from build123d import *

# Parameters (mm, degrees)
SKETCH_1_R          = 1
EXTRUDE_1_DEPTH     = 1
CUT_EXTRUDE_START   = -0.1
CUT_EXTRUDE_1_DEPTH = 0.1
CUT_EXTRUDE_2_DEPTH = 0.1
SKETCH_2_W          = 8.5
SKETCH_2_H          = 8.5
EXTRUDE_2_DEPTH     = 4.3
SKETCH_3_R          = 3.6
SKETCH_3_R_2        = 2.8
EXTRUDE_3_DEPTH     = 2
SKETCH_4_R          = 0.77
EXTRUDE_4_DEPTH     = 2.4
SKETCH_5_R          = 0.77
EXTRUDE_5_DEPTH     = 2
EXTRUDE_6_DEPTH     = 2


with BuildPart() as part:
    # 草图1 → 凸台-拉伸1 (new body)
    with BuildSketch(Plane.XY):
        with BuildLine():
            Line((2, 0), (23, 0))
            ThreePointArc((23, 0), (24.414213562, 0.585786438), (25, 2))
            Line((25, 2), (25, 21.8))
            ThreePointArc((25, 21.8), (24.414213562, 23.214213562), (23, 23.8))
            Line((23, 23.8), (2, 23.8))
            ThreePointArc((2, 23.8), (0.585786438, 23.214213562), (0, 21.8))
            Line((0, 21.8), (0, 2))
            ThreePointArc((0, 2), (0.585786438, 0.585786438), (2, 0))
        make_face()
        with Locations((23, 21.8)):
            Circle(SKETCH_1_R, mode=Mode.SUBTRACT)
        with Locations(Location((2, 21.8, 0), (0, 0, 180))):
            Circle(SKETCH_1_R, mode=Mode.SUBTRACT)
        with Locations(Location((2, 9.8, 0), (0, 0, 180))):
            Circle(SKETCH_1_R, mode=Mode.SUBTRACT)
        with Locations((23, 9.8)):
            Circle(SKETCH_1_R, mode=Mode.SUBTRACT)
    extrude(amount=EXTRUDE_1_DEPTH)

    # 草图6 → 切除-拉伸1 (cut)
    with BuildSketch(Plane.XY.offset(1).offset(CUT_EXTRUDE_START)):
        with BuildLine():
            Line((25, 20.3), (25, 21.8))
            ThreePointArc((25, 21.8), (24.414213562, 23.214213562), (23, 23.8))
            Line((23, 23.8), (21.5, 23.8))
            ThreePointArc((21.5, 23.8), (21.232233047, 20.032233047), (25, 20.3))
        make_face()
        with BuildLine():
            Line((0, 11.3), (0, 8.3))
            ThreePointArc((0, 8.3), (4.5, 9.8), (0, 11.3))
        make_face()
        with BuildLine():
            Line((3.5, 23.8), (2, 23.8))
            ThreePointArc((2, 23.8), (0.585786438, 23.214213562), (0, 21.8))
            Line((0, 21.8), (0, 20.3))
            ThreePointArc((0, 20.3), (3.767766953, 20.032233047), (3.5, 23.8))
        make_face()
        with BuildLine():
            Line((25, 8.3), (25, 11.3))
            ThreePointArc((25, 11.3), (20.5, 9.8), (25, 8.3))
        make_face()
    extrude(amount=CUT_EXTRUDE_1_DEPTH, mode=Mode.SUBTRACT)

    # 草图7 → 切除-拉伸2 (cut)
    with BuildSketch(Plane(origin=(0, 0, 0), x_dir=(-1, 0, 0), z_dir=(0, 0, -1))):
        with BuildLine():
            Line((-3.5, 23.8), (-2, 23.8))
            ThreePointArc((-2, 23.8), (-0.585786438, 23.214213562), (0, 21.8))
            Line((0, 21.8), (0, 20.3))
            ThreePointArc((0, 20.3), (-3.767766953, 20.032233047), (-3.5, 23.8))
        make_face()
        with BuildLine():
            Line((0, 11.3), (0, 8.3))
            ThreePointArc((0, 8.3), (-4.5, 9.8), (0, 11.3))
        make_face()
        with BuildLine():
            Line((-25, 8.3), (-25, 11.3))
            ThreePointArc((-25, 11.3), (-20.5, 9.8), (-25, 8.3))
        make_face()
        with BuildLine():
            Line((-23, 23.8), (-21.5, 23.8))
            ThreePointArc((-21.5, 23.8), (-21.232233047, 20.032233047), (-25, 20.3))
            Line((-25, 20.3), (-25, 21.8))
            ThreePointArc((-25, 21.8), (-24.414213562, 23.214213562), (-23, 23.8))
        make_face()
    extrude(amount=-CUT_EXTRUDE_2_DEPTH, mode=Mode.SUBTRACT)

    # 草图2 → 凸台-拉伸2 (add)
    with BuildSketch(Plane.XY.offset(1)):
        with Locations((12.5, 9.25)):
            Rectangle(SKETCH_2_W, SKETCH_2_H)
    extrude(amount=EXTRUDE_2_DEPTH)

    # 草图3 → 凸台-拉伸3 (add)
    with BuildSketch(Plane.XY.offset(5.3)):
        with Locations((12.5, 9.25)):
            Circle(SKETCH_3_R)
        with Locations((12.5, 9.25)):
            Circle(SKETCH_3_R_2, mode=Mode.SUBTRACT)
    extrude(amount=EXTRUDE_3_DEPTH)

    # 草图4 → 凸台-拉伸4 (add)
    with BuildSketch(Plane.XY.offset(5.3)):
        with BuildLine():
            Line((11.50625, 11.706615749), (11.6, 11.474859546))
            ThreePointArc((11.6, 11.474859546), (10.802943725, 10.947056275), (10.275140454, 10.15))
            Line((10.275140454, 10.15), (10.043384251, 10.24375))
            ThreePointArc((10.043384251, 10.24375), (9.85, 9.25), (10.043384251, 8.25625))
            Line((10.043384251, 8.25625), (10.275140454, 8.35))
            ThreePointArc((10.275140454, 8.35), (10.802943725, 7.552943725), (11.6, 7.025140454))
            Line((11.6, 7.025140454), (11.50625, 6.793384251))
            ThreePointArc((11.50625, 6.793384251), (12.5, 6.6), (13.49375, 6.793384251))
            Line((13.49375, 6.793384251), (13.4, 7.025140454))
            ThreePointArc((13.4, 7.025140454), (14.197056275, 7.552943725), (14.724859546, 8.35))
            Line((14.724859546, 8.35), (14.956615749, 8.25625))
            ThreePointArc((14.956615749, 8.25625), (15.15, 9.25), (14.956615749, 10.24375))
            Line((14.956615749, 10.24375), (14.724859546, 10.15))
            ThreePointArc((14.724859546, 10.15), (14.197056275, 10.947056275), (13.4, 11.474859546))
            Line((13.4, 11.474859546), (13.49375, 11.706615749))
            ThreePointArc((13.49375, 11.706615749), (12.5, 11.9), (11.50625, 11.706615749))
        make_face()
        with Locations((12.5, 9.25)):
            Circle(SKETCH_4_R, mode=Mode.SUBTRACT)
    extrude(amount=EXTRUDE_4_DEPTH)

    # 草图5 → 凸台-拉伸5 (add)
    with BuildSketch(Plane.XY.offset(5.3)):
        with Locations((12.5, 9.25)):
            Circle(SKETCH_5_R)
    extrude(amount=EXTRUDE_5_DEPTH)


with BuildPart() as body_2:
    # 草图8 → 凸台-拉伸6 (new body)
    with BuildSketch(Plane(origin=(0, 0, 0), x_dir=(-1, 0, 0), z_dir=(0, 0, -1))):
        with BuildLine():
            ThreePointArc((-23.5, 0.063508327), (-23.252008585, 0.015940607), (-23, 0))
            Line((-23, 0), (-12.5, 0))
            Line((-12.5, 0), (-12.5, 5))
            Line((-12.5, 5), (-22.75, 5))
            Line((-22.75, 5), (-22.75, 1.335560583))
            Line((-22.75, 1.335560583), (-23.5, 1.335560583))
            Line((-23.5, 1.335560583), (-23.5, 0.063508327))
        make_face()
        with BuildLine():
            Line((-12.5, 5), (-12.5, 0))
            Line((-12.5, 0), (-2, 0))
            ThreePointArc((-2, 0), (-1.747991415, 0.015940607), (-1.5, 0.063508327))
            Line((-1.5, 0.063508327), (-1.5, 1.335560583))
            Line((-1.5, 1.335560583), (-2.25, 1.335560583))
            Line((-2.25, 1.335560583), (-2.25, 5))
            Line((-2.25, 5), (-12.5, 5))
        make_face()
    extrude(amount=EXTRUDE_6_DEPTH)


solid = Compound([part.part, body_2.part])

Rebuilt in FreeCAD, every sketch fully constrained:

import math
import FreeCAD as App
import Part
import Sketcher

V = App.Vector


def add_polygon(sketch, points):
    """Adds a closed chain of lines whose ends are joined by coincident constraints."""
    first, n = sketch.GeometryCount, len(points)
    for a, b in zip(points, points[1:] + points[:1]):
        sketch.addGeometry(Part.LineSegment(App.Vector(*a, 0), App.Vector(*b, 0)), False)
    for i in range(n):
        sketch.addConstraint(Sketcher.Constraint("Coincident", first + i, 2, first + (i + 1) % n, 1))

doc = App.newDocument("Part")
body = doc.addObject("PartDesign::Body", "Body")

# Sketch on XY plane
sketch1 = body.newObject("Sketcher::SketchObject", "Sketch")
sketch1.AttachmentSupport = (doc.getObject("XY_Plane"), [""])
sketch1.MapMode = "FlatFace"
sketch1.addGeometry([
    Part.LineSegment(V(2, 0, 0), V(23, 0, 0)),  # 0
    Part.ArcOfCircle(Part.Circle(V(23, 2, 0), V(0, 0, 1), 2), math.radians(-90), math.radians(0)),  # 1
    Part.LineSegment(V(25, 2, 0), V(25, 21.8, 0)),  # 2
    Part.ArcOfCircle(Part.Circle(V(23, 21.8, 0), V(0, 0, 1), 2), math.radians(0), math.radians(90)),  # 3
    Part.LineSegment(V(23, 23.8, 0), V(2, 23.8, 0)),  # 4
    Part.ArcOfCircle(Part.Circle(V(2, 21.8, 0), V(0, 0, 1), 2), math.radians(90), math.radians(180)),  # 5
    Part.LineSegment(V(0, 21.8, 0), V(0, 2, 0)),  # 6
    Part.ArcOfCircle(Part.Circle(V(2, 2, 0), V(0, 0, 1), 2), math.radians(-180), math.radians(-90)),  # 7
    Part.Circle(V(2, 9.8, 0), V(0, 0, 1), 1),  # 8
    Part.Circle(V(23, 9.8, 0), V(0, 0, 1), 1),  # 9
    Part.Circle(V(2, 21.8, 0), V(0, 0, 1), 1),  # 10
    Part.Circle(V(23, 21.8, 0), V(0, 0, 1), 1),  # 11
], False)
sketch1.addConstraint([
    Sketcher.Constraint("Tangent", 0, 2, 1, 1),
    Sketcher.Constraint("Tangent", 1, 2, 2, 1),
    Sketcher.Constraint("Tangent", 2, 2, 3, 1),
    Sketcher.Constraint("Tangent", 3, 2, 4, 1),
    Sketcher.Constraint("Tangent", 4, 2, 5, 1),
    Sketcher.Constraint("Tangent", 5, 2, 6, 1),
    Sketcher.Constraint("Tangent", 6, 2, 7, 1),
    Sketcher.Constraint("Tangent", 7, 2, 0, 1),
    Sketcher.Constraint("Horizontal", 0),
    Sketcher.Constraint("Vertical", 2),
    Sketcher.Constraint("Horizontal", 4),
    Sketcher.Constraint("Vertical", 6),
    Sketcher.Constraint("Coincident", 10, 3, 5, 3),
    Sketcher.Constraint("Coincident", 11, 3, 3, 3),
    Sketcher.Constraint("Equal", 1, 3),
    Sketcher.Constraint("Equal", 3, 5),
    Sketcher.Constraint("Equal", 5, 7),
    Sketcher.Constraint("Equal", 8, 9),
    Sketcher.Constraint("Equal", 9, 10),
    Sketcher.Constraint("Equal", 10, 11),
    Sketcher.Constraint("PointOnObject", 0, 2, -1),
    Sketcher.Constraint("PointOnObject", 5, 2, -2),
    Sketcher.Constraint("Horizontal", 8, 3, 9, 3),
    Sketcher.Constraint("Vertical", 7, 3, 8, 3),
    Sketcher.Constraint("Vertical", 3, 3, 9, 3),
    Sketcher.Constraint("Diameter", 8, 2.0),
    Sketcher.Constraint("Radius", 1, 2.0),
    Sketcher.Constraint("DistanceX", 0, 1, 0, 2, 21.0),
    Sketcher.Constraint("DistanceY", 2, 1, 2, 2, 19.8),
    Sketcher.Constraint("DistanceY", 8, 3, 5, 3, 12.0),
])
pad1 = body.newObject("PartDesign::Pad", "Pad")
pad1.Profile = sketch1
pad1.Length = 1

# Sketch on XY plane
sketch2 = body.newObject("Sketcher::SketchObject", "Sketch001")
sketch2.AttachmentSupport = (doc.getObject("XY_Plane"), [""])
sketch2.MapMode = "FlatFace"
sketch2.AttachmentOffset = App.Placement(V(0, 0, 0.9), App.Rotation())
sketch2.addGeometry([
    Part.LineSegment(V(25, 20.3, 0), V(25, 21.8, 0)),  # 0
    Part.ArcOfCircle(Part.Circle(V(23, 21.8, 0), V(0, 0, 1), 2), math.radians(0), math.radians(90)),  # 1
    Part.LineSegment(V(23, 23.8, 0), V(21.5, 23.8, 0)),  # 2
    Part.ArcOfCircle(Part.Circle(V(23, 21.8, 0), V(0, 0, 1), 2.5), math.radians(126.869898), math.radians(323.130102)),  # 3
    Part.LineSegment(V(0, 11.3, 0), V(0, 8.3, 0)),  # 4
    Part.ArcOfCircle(Part.Circle(V(2, 9.8, 0), V(0, 0, 1), 2.5), math.radians(-143.130102), math.radians(143.130102)),  # 5
    Part.LineSegment(V(3.5, 23.8, 0), V(2, 23.8, 0)),  # 6
    Part.ArcOfCircle(Part.Circle(V(2, 21.8, 0), V(0, 0, 1), 2), math.radians(90), math.radians(180)),  # 7
    Part.LineSegment(V(0, 21.8, 0), V(0, 20.3, 0)),  # 8
    Part.ArcOfCircle(Part.Circle(V(2, 21.8, 0), V(0, 0, 1), 2.5), math.radians(-143.130102), math.radians(53.130102)),  # 9
    Part.LineSegment(V(25, 8.3, 0), V(25, 11.3, 0)),  # 10
    Part.ArcOfCircle(Part.Circle(V(23, 9.8, 0), V(0, 0, 1), 2.5), math.radians(36.869898), math.radians(323.130102)),  # 11
], False)
sketch2.addConstraint([
    Sketcher.Constraint("Tangent", 0, 2, 1, 1),
    Sketcher.Constraint("Tangent", 1, 2, 2, 1),
    Sketcher.Constraint("Coincident", 2, 2, 3, 1),
    Sketcher.Constraint("Coincident", 3, 2, 0, 1),
    Sketcher.Constraint("Coincident", 4, 1, 5, 2),
    Sketcher.Constraint("Coincident", 5, 1, 4, 2),
    Sketcher.Constraint("Tangent", 6, 2, 7, 1),
    Sketcher.Constraint("Tangent", 7, 2, 8, 1),
    Sketcher.Constraint("Coincident", 8, 2, 9, 1),
    Sketcher.Constraint("Coincident", 9, 2, 6, 1),
    Sketcher.Constraint("Coincident", 10, 1, 11, 2),
    Sketcher.Constraint("Coincident", 11, 1, 10, 2),
    Sketcher.Constraint("Vertical", 0),
    Sketcher.Constraint("Horizontal", 2),
    Sketcher.Constraint("Vertical", 4),
    Sketcher.Constraint("Horizontal", 6),
    Sketcher.Constraint("Vertical", 8),
    Sketcher.Constraint("Vertical", 10),
    Sketcher.Constraint("Coincident", 3, 3, 1, 3),
    Sketcher.Constraint("Coincident", 9, 3, 7, 3),
    Sketcher.Constraint("Equal", 3, 5),
    Sketcher.Constraint("Equal", 1, 7),
    Sketcher.Constraint("Equal", 5, 9),
    Sketcher.Constraint("Equal", 9, 11),
    Sketcher.Constraint("PointOnObject", 4, 1, -2),
    Sketcher.Constraint("PointOnObject", 7, 2, -2),
    Sketcher.Constraint("Horizontal", 3, 3, 7, 3),
    Sketcher.Constraint("Horizontal", 5, 3, 11, 3),
    Sketcher.Constraint("Horizontal", 5, 1, 10, 1),
    Sketcher.Constraint("Vertical", 5, 3, 7, 3),
    Sketcher.Constraint("Vertical", 3, 3, 11, 3),
    Sketcher.Constraint("Radius", 1, 2.0),
    Sketcher.Constraint("Radius", 3, 2.5),
    Sketcher.Constraint("DistanceX", -1, 1, 1, 3, 23.0),
    Sketcher.Constraint("DistanceY", 5, 3, 1, 3, 12.0),
    Sketcher.Constraint("DistanceY", -1, 1, 1, 3, 21.8),
])
pocket1 = body.newObject("PartDesign::Pocket", "Pocket")
pocket1.Profile = sketch2
pocket1.Length = 0.1
pocket1.Reversed = True

# Sketch on XY plane
sketch3 = body.newObject("Sketcher::SketchObject", "Sketch002")
sketch3.AttachmentSupport = (doc.getObject("XY_Plane"), [""])
sketch3.MapMode = "FlatFace"
sketch3.addGeometry([
    Part.LineSegment(V(2, 23.8, 0), V(3.5, 23.8, 0)),  # 0
    Part.ArcOfCircle(Part.Circle(V(2, 21.8, 0), V(0, 0, 1), 2.5), math.radians(-143.130102), math.radians(53.130102)),  # 1
    Part.LineSegment(V(0, 20.3, 0), V(0, 21.8, 0)),  # 2
    Part.ArcOfCircle(Part.Circle(V(2, 21.8, 0), V(0, 0, 1), 2), math.radians(90), math.radians(180)),  # 3
    Part.LineSegment(V(0, 8.3, 0), V(0, 11.3, 0)),  # 4
    Part.ArcOfCircle(Part.Circle(V(2, 9.8, 0), V(0, 0, 1), 2.5), math.radians(-143.130102), math.radians(143.130102)),  # 5
    Part.LineSegment(V(25, 11.3, 0), V(25, 8.3, 0)),  # 6
    Part.ArcOfCircle(Part.Circle(V(23, 9.8, 0), V(0, 0, 1), 2.5), math.radians(36.869898), math.radians(323.130102)),  # 7
    Part.LineSegment(V(21.5, 23.8, 0), V(23, 23.8, 0)),  # 8
    Part.ArcOfCircle(Part.Circle(V(23, 21.8, 0), V(0, 0, 1), 2), math.radians(0), math.radians(90)),  # 9
    Part.LineSegment(V(25, 21.8, 0), V(25, 20.3, 0)),  # 10
    Part.ArcOfCircle(Part.Circle(V(23, 21.8, 0), V(0, 0, 1), 2.5), math.radians(126.869898), math.radians(323.130102)),  # 11
], False)
sketch3.addConstraint([
    Sketcher.Constraint("Coincident", 0, 2, 1, 2),
    Sketcher.Constraint("Coincident", 1, 1, 2, 1),
    Sketcher.Constraint("Tangent", 2, 2, 3, 2),
    Sketcher.Constraint("Tangent", 3, 1, 0, 1),
    Sketcher.Constraint("Coincident", 4, 1, 5, 1),
    Sketcher.Constraint("Coincident", 5, 2, 4, 2),
    Sketcher.Constraint("Coincident", 6, 1, 7, 1),
    Sketcher.Constraint("Coincident", 7, 2, 6, 2),
    Sketcher.Constraint("Tangent", 8, 2, 9, 2),
    Sketcher.Constraint("Tangent", 9, 1, 10, 1),
    Sketcher.Constraint("Coincident", 10, 2, 11, 2),
    Sketcher.Constraint("Coincident", 11, 1, 8, 1),
    Sketcher.Constraint("Horizontal", 0),
    Sketcher.Constraint("Vertical", 2),
    Sketcher.Constraint("Vertical", 4),
    Sketcher.Constraint("Vertical", 6),
    Sketcher.Constraint("Horizontal", 8),
    Sketcher.Constraint("Vertical", 10),
    Sketcher.Constraint("Coincident", 3, 3, 1, 3),
    Sketcher.Constraint("Coincident", 11, 3, 9, 3),
    Sketcher.Constraint("Equal", 1, 5),
    Sketcher.Constraint("Equal", 5, 7),
    Sketcher.Constraint("Equal", 3, 9),
    Sketcher.Constraint("Equal", 7, 11),
    Sketcher.Constraint("PointOnObject", 1, 1, -2),
    Sketcher.Constraint("PointOnObject", 4, 1, -2),
    Sketcher.Constraint("Horizontal", 5, 3, 7, 3),
    Sketcher.Constraint("Horizontal", 3, 3, 9, 3),
    Sketcher.Constraint("Horizontal", 5, 2, 6, 1),
    Sketcher.Constraint("Vertical", 3, 3, 5, 3),
    Sketcher.Constraint("Vertical", 7, 3, 9, 3),
    Sketcher.Constraint("Radius", 3, 2.0),
    Sketcher.Constraint("Radius", 1, 2.5),
    Sketcher.Constraint("DistanceX", -1, 1, 7, 3, 23.0),
    Sketcher.Constraint("DistanceY", 5, 3, 3, 3, 12.0),
    Sketcher.Constraint("DistanceY", -1, 1, 1, 3, 21.8),
])
pocket2 = body.newObject("PartDesign::Pocket", "Pocket001")
pocket2.Profile = sketch3
pocket2.Length = 0.1
pocket2.Reversed = True

# Sketch on XY plane
sketch4 = body.newObject("Sketcher::SketchObject", "Sketch003")
sketch4.AttachmentSupport = (doc.getObject("XY_Plane"), [""])
sketch4.MapMode = "FlatFace"
sketch4.AttachmentOffset = App.Placement(V(0, 0, 1), App.Rotation())
add_polygon(sketch4, [(8.25, 13.5), (8.25, 5), (16.75, 5), (16.75, 13.5)])  # lines 0-3
sketch4.addConstraint([
    Sketcher.Constraint("Vertical", 0),
    Sketcher.Constraint("Horizontal", 1),
    Sketcher.Constraint("Vertical", 2),
    Sketcher.Constraint("Horizontal", 3),
    Sketcher.Constraint("Equal", 3, 0),
    Sketcher.Constraint("DistanceX", 1, 1, 1, 2, 8.5),
    Sketcher.Constraint("DistanceY", -1, 1, 0, 2, 5.0),
    Sketcher.Constraint("DistanceX", -1, 1, 0, 2, 8.25),
])
pad2 = body.newObject("PartDesign::Pad", "Pad001")
pad2.Profile = sketch4
pad2.Length = 4.3

# Sketch on XY plane
sketch5 = body.newObject("Sketcher::SketchObject", "Sketch004")
sketch5.AttachmentSupport = (doc.getObject("XY_Plane"), [""])
sketch5.MapMode = "FlatFace"
sketch5.AttachmentOffset = App.Placement(V(0, 0, 5.3), App.Rotation())
sketch5.addGeometry([
    Part.Circle(V(12.5, 9.25, 0), V(0, 0, 1), 3.6),
    Part.Circle(V(12.5, 9.25, 0), V(0, 0, 1), 2.8),
], False)
sketch5.addConstraint([
    Sketcher.Constraint("Coincident", 1, 3, 0, 3),
    Sketcher.Constraint("Diameter", 0, 7.2),
    Sketcher.Constraint("Diameter", 1, 5.6),
    Sketcher.Constraint("DistanceX", -1, 1, 0, 3, 12.5),
    Sketcher.Constraint("DistanceY", -1, 1, 0, 3, 9.25),
])
pad3 = body.newObject("PartDesign::Pad", "Pad002")
pad3.Profile = sketch5
pad3.Length = 2

# Sketch on XY plane
sketch6 = body.newObject("Sketcher::SketchObject", "Sketch005")
sketch6.AttachmentSupport = (doc.getObject("XY_Plane"), [""])
sketch6.MapMode = "FlatFace"
sketch6.AttachmentOffset = App.Placement(V(0, 0, 5.3), App.Rotation())
sketch6.addGeometry([
    Part.LineSegment(V(11.50625, 11.706616, 0), V(11.6, 11.47486, 0)),  # 0
    Part.ArcOfCircle(Part.Circle(V(12.5, 9.25, 0), V(0, 0, 1), 2.4), math.radians(112.024313), math.radians(157.975687)),  # 1
    Part.LineSegment(V(10.27514, 10.15, 0), V(10.043384, 10.24375, 0)),  # 2
    Part.ArcOfCircle(Part.Circle(V(12.5, 9.25, 0), V(0, 0, 1), 2.65), math.radians(157.975687), math.radians(202.024313)),  # 3
    Part.LineSegment(V(10.043384, 8.25625, 0), V(10.27514, 8.35, 0)),  # 4
    Part.ArcOfCircle(Part.Circle(V(12.5, 9.25, 0), V(0, 0, 1), 2.4), math.radians(-157.975687), math.radians(-112.024313)),  # 5
    Part.LineSegment(V(11.6, 7.02514, 0), V(11.50625, 6.793384, 0)),  # 6
    Part.ArcOfCircle(Part.Circle(V(12.5, 9.25, 0), V(0, 0, 1), 2.65), math.radians(-112.024313), math.radians(-67.975687)),  # 7
    Part.LineSegment(V(13.49375, 6.793384, 0), V(13.4, 7.02514, 0)),  # 8
    Part.ArcOfCircle(Part.Circle(V(12.5, 9.25, 0), V(0, 0, 1), 2.4), math.radians(-67.975687), math.radians(-22.024313)),  # 9
    Part.LineSegment(V(14.72486, 8.35, 0), V(14.956616, 8.25625, 0)),  # 10
    Part.ArcOfCircle(Part.Circle(V(12.5, 9.25, 0), V(0, 0, 1), 2.65), math.radians(-22.024313), math.radians(22.024313)),  # 11
    Part.LineSegment(V(14.956616, 10.24375, 0), V(14.72486, 10.15, 0)),  # 12
    Part.ArcOfCircle(Part.Circle(V(12.5, 9.25, 0), V(0, 0, 1), 2.4), math.radians(22.024313), math.radians(67.975687)),  # 13
    Part.LineSegment(V(13.4, 11.47486, 0), V(13.49375, 11.706616, 0)),  # 14
    Part.ArcOfCircle(Part.Circle(V(12.5, 9.25, 0), V(0, 0, 1), 2.65), math.radians(67.975687), math.radians(112.024313)),  # 15
    Part.Circle(V(12.5, 9.25, 0), V(0, 0, 1), 0.77),  # 16
], False)
sketch6.addConstraint([
    Sketcher.Constraint("Coincident", 0, 2, 1, 1),
    Sketcher.Constraint("Coincident", 1, 2, 2, 1),
    Sketcher.Constraint("Coincident", 2, 2, 3, 1),
    Sketcher.Constraint("Coincident", 3, 2, 4, 1),
    Sketcher.Constraint("Coincident", 4, 2, 5, 1),
    Sketcher.Constraint("Coincident", 5, 2, 6, 1),
    Sketcher.Constraint("Coincident", 6, 2, 7, 1),
    Sketcher.Constraint("Coincident", 7, 2, 8, 1),
    Sketcher.Constraint("Coincident", 8, 2, 9, 1),
    Sketcher.Constraint("Coincident", 9, 2, 10, 1),
    Sketcher.Constraint("Coincident", 10, 2, 11, 1),
    Sketcher.Constraint("Coincident", 11, 2, 12, 1),
    Sketcher.Constraint("Coincident", 12, 2, 13, 1),
    Sketcher.Constraint("Coincident", 13, 2, 14, 1),
    Sketcher.Constraint("Coincident", 14, 2, 15, 1),
    Sketcher.Constraint("Coincident", 15, 2, 0, 1),
    Sketcher.Constraint("Coincident", 3, 3, 1, 3),
    Sketcher.Constraint("Coincident", 5, 3, 1, 3),
    Sketcher.Constraint("Coincident", 7, 3, 1, 3),
    Sketcher.Constraint("Coincident", 9, 3, 1, 3),
    Sketcher.Constraint("Coincident", 11, 3, 1, 3),
    Sketcher.Constraint("Coincident", 13, 3, 1, 3),
    Sketcher.Constraint("Coincident", 15, 3, 1, 3),
    Sketcher.Constraint("Coincident", 16, 3, 1, 3),
    Sketcher.Constraint("Equal", 1, 5),
    Sketcher.Constraint("Equal", 3, 7),
    Sketcher.Constraint("Equal", 5, 9),
    Sketcher.Constraint("Equal", 7, 11),
    Sketcher.Constraint("Equal", 9, 13),
    Sketcher.Constraint("Equal", 11, 15),
    Sketcher.Constraint("Perpendicular", 0, 4),
    Sketcher.Constraint("Perpendicular", 2, 6),
    Sketcher.Constraint("Perpendicular", 4, 8),
    Sketcher.Constraint("Perpendicular", 6, 10),
    Sketcher.Constraint("Perpendicular", 8, 12),
    Sketcher.Constraint("Perpendicular", 10, 14),
    Sketcher.Constraint("Horizontal", 6, 2, 7, 2),
    Sketcher.Constraint("Horizontal", 5, 2, 8, 2),
    Sketcher.Constraint("Horizontal", 4, 2, 9, 2),
    Sketcher.Constraint("Horizontal", 2, 2, 11, 2),
    Sketcher.Constraint("Horizontal", 0, 2, 13, 2),
    Sketcher.Constraint("Vertical", 2, 2, 3, 2),
    Sketcher.Constraint("Vertical", 0, 2, 5, 2),
    Sketcher.Constraint("Radius", 1, 2.4),
    Sketcher.Constraint("Diameter", 16, 1.54),
    Sketcher.Constraint("Radius", 3, 2.65),
    Sketcher.Constraint("DistanceX", -1, 1, 1, 3, 12.5),
    Sketcher.Constraint("DistanceX", -1, 1, 0, 2, 11.6),
    Sketcher.Constraint("DistanceY", 1, 3, 1, 2, 0.9),
    Sketcher.Constraint("DistanceY", -1, 1, 1, 3, 9.25),
    Sketcher.Constraint("DistanceY", 3, 2, 2, 2, 1.9875),
])
pad4 = body.newObject("PartDesign::Pad", "Pad003")
pad4.Profile = sketch6
pad4.Length = 2.4

# Sketch on XY plane
sketch7 = body.newObject("Sketcher::SketchObject", "Sketch006")
sketch7.AttachmentSupport = (doc.getObject("XY_Plane"), [""])
sketch7.MapMode = "FlatFace"
sketch7.AttachmentOffset = App.Placement(V(0, 0, 5.3), App.Rotation())
sketch7.addGeometry(Part.Circle(V(12.5, 9.25, 0), V(0, 0, 1), 0.77), False)
sketch7.addConstraint([
    Sketcher.Constraint("Diameter", 0, 1.54),
    Sketcher.Constraint("DistanceX", -1, 1, 0, 3, 12.5),
    Sketcher.Constraint("DistanceY", -1, 1, 0, 3, 9.25),
])
pad5 = body.newObject("PartDesign::Pad", "Pad004")
pad5.Profile = sketch7
pad5.Length = 2
body2 = doc.addObject("PartDesign::Body", "Body001")

# Sketch on XY plane
sketch8 = body2.newObject("Sketcher::SketchObject", "Sketch007")
sketch8.AttachmentSupport = (doc.getObject("XY_Plane001"), [""])
sketch8.MapMode = "FlatFace"
sketch8.addGeometry([
    Part.ArcOfCircle(Part.Circle(V(23, 2, 0), V(0, 0, 1), 2), math.radians(-90), math.radians(-75.522488)),  # 0
    Part.LineSegment(V(23, 0, 0), V(2, 0, 0)),  # 1
    Part.ArcOfCircle(Part.Circle(V(2, 2, 0), V(0, 0, 1), 2), math.radians(-104.477512), math.radians(-90)),  # 2
    Part.LineSegment(V(1.5, 0.063508, 0), V(1.5, 1.335561, 0)),  # 3
    Part.LineSegment(V(1.5, 1.335561, 0), V(2.25, 1.335561, 0)),  # 4
    Part.LineSegment(V(2.25, 1.335561, 0), V(2.25, 5, 0)),  # 5
    Part.LineSegment(V(2.25, 5, 0), V(22.75, 5, 0)),  # 6
    Part.LineSegment(V(22.75, 5, 0), V(22.75, 1.335561, 0)),  # 7
    Part.LineSegment(V(22.75, 1.335561, 0), V(23.5, 1.335561, 0)),  # 8
    Part.LineSegment(V(23.5, 1.335561, 0), V(23.5, 0.063508, 0)),  # 9
], False)
sketch8.addConstraint([
    Sketcher.Constraint("Tangent", 0, 1, 1, 1),
    Sketcher.Constraint("Tangent", 1, 2, 2, 2),
    Sketcher.Constraint("Coincident", 2, 1, 3, 1),
    Sketcher.Constraint("Coincident", 3, 2, 4, 1),
    Sketcher.Constraint("Coincident", 4, 2, 5, 1),
    Sketcher.Constraint("Coincident", 5, 2, 6, 1),
    Sketcher.Constraint("Coincident", 6, 2, 7, 1),
    Sketcher.Constraint("Coincident", 7, 2, 8, 1),
    Sketcher.Constraint("Coincident", 8, 2, 9, 1),
    Sketcher.Constraint("Coincident", 9, 2, 0, 2),
    Sketcher.Constraint("Horizontal", 1),
    Sketcher.Constraint("Vertical", 3),
    Sketcher.Constraint("Horizontal", 4),
    Sketcher.Constraint("Vertical", 5),
    Sketcher.Constraint("Horizontal", 6),
    Sketcher.Constraint("Vertical", 7),
    Sketcher.Constraint("Horizontal", 8),
    Sketcher.Constraint("Vertical", 9),
    Sketcher.Constraint("Equal", 0, 2),
    Sketcher.Constraint("PointOnObject", 0, 1, -1),
    Sketcher.Constraint("Horizontal", 4, 2, 7, 2),
    Sketcher.Constraint("Horizontal", 2, 1, 9, 2),
    Sketcher.Constraint("Equal", 4, 8),
    Sketcher.Constraint("Radius", 0, 2.0),
    Sketcher.Constraint("DistanceX", 1, 2, 1, 1, 21.0),
    Sketcher.Constraint("DistanceX", 6, 1, 6, 2, 20.5),
    Sketcher.Constraint("DistanceX", -1, 1, 0, 3, 23.0),
    Sketcher.Constraint("DistanceY", -1, 1, 5, 2, 5.0),
    Sketcher.Constraint("DistanceX", 4, 1, 4, 2, 0.75),
    Sketcher.Constraint("DistanceY", 5, 1, 5, 2, 3.664439),
])
pad6 = body2.newObject("PartDesign::Pad", "Pad005")
pad6.Profile = sketch8
pad6.Length = 2
pad6.Reversed = True

doc.recompute()
